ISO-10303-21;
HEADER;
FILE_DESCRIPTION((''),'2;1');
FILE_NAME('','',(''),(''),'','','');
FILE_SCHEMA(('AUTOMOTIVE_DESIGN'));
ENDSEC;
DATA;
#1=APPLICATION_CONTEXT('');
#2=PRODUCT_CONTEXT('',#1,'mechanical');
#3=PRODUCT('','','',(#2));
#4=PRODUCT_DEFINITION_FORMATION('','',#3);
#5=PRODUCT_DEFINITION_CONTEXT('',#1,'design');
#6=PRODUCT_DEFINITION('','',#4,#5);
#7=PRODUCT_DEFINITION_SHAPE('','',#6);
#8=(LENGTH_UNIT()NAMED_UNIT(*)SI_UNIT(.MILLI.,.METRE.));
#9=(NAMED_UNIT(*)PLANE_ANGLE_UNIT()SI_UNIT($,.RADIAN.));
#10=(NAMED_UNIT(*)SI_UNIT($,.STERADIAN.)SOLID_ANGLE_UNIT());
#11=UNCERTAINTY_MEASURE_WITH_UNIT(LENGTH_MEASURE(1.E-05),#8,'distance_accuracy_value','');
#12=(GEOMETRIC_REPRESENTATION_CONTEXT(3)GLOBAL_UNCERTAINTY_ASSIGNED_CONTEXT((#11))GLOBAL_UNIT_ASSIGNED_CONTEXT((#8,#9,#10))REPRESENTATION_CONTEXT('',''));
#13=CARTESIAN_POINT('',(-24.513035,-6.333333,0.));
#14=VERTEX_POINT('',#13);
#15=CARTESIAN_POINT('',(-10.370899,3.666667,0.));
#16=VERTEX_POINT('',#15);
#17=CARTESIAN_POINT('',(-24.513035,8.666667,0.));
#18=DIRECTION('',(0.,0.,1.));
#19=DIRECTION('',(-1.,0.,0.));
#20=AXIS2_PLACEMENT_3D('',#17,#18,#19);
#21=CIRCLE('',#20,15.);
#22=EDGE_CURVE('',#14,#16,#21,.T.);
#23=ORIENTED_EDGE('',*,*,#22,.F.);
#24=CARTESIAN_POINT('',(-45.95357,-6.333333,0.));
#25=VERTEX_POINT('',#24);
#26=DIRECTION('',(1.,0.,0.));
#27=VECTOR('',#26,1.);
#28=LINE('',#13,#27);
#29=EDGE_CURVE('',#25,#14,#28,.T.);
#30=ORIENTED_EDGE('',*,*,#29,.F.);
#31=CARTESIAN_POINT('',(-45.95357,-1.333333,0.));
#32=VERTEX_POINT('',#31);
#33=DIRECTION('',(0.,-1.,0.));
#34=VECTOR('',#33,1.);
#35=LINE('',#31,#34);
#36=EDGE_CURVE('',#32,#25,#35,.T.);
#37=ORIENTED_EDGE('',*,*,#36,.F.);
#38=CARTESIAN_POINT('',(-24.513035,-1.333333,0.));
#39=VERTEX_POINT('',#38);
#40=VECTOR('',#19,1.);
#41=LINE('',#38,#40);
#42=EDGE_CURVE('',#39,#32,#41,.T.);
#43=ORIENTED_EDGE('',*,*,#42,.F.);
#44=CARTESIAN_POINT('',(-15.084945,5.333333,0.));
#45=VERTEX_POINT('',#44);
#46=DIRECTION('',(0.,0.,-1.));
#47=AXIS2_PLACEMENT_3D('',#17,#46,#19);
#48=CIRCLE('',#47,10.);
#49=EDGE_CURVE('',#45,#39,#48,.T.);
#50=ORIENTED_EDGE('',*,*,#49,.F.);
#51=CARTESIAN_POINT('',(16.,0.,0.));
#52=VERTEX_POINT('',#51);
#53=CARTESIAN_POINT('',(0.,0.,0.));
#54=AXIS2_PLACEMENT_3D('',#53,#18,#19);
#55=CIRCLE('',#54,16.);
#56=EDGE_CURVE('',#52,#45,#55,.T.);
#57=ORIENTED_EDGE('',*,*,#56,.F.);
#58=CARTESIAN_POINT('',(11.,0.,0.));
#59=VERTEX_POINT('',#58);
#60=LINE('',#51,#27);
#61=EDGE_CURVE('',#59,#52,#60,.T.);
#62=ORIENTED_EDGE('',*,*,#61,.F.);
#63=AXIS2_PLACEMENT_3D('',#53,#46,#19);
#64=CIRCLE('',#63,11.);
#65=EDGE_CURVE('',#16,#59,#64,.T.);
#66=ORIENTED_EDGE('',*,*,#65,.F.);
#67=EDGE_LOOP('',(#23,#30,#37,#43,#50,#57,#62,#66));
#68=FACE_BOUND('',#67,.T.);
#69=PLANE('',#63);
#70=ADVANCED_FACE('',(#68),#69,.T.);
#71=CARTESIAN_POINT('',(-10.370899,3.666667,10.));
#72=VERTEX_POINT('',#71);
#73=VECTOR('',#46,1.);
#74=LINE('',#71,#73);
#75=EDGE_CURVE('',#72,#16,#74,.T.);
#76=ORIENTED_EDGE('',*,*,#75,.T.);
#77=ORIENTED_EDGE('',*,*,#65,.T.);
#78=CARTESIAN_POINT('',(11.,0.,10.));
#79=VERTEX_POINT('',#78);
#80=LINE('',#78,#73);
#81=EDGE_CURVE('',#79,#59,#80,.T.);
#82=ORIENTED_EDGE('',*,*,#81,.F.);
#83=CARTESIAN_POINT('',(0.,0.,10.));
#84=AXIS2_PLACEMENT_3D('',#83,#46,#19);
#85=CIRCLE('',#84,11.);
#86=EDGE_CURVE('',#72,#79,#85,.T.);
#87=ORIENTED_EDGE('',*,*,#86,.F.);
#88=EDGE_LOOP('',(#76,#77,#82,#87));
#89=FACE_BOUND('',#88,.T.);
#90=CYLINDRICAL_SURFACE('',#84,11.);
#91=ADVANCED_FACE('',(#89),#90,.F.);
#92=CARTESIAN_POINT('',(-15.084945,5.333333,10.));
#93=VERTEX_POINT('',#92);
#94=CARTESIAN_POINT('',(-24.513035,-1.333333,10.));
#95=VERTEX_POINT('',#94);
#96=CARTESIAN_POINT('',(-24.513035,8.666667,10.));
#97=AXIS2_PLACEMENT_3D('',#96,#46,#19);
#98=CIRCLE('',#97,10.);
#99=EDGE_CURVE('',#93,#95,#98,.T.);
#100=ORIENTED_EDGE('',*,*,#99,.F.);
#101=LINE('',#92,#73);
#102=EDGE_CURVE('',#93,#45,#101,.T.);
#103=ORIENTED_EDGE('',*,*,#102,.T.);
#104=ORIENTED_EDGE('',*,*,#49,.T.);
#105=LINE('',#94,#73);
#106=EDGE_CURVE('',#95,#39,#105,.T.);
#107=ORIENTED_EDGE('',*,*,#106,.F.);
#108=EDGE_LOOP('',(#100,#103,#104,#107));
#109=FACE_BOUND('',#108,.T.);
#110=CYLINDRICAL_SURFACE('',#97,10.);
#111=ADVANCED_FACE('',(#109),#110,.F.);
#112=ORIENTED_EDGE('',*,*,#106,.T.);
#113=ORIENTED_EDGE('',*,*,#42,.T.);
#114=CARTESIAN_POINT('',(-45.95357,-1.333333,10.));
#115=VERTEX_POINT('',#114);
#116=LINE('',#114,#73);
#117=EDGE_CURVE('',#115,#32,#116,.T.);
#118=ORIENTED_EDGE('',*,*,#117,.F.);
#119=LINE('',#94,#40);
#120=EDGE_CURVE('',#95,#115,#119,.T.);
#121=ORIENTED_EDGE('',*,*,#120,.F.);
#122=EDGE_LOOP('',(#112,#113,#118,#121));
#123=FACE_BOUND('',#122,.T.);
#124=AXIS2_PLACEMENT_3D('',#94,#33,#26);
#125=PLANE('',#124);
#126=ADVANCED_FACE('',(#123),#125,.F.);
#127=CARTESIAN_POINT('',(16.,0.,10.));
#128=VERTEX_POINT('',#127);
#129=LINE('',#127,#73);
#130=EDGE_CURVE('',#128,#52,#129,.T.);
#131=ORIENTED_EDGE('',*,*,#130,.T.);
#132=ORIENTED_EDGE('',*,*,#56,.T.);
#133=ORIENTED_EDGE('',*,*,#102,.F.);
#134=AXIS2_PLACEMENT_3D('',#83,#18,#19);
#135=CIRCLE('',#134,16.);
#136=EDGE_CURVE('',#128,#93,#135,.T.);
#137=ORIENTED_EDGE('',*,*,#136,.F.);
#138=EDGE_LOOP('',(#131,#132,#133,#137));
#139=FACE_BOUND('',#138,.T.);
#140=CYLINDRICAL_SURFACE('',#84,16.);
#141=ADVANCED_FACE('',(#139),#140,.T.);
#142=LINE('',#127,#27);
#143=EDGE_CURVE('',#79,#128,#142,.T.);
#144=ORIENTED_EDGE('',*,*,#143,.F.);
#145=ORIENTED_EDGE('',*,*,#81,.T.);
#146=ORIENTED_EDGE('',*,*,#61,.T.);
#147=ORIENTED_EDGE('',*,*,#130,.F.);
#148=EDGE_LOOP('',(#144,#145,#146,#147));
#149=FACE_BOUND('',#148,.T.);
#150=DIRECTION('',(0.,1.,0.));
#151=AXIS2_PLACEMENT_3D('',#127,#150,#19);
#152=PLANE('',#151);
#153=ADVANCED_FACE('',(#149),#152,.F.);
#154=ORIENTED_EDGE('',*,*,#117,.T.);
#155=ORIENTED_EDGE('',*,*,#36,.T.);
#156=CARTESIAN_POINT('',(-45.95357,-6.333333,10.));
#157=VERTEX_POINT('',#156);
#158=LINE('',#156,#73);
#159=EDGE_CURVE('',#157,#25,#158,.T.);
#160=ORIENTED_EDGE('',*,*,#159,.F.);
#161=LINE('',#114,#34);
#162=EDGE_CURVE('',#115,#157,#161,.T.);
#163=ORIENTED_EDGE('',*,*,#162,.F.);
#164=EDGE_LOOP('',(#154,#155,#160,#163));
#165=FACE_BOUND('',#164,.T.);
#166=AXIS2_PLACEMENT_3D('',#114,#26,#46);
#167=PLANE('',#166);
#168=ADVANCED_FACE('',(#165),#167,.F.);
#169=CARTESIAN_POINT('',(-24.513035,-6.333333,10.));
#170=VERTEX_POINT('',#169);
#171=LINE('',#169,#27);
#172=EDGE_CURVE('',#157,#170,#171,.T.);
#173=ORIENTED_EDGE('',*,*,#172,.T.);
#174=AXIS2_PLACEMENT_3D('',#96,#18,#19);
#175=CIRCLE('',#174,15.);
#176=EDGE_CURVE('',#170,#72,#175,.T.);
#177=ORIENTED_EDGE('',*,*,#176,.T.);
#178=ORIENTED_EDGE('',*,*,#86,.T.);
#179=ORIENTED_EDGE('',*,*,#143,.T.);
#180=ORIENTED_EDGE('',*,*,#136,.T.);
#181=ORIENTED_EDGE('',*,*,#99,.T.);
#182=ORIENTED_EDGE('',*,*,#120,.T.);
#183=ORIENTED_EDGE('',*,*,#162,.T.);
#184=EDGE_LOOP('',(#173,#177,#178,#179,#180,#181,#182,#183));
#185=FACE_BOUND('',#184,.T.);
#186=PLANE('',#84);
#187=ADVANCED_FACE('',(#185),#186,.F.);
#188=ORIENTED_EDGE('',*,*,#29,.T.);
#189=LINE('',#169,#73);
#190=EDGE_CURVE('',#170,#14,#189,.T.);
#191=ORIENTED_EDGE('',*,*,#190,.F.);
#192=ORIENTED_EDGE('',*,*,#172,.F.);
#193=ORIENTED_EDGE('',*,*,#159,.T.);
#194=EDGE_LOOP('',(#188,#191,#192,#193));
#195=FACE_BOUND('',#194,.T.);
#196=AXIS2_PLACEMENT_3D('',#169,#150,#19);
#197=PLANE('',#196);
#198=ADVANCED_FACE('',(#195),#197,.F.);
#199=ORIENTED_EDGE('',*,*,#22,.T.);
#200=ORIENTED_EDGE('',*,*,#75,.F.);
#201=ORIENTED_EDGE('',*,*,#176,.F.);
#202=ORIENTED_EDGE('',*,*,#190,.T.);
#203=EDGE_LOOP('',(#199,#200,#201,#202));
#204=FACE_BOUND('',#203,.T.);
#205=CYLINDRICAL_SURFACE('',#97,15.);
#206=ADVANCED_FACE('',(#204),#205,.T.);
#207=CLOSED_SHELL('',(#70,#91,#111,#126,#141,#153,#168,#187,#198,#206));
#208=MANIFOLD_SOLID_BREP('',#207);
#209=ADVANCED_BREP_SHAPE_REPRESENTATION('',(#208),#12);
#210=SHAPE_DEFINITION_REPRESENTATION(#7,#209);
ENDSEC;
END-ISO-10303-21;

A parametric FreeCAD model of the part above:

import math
import FreeCAD as App
import Part
import Sketcher
from FreeCAD import Vector

doc = App.newDocument("Part")
body = doc.addObject("PartDesign::Body", "Body")

sketch1 = body.newObject("Sketcher::SketchObject", "Sketch")
sketch1.AttachmentSupport = (doc.getObject("XY_Plane"), [""])
sketch1.MapMode = "FlatFace"
sketch1.addGeometry(Part.LineSegment(Vector(-46, -6, 0), Vector(-25, -6, 0)), False)
sketch1.addGeometry(Part.ArcOfCircle(Part.Circle(Vector(-25, 9, 0), Vector(0, 0, 1), 15), math.radians(-90), math.radians(-19)), False)
sketch1.addGeometry(Part.ArcOfCircle(Part.Circle(Vector(0, 0, 0), Vector(0, 0, 1), 11), math.radians(0), math.radians(161)), False)
sketch1.addGeometry(Part.LineSegment(Vector(11, 0, 0), Vector(16, 0, 0)), False)
sketch1.addGeometry(Part.ArcOfCircle(Part.Circle(Vector(0, 0, 0), Vector(0, 0, 1), 16), math.radians(0), math.radians(161)), False)
sketch1.addGeometry(Part.ArcOfCircle(Part.Circle(Vector(-25, 9, 0), Vector(0, 0, 1), 10), math.radians(-90), math.radians(-19)), False)
sketch1.addGeometry(Part.LineSegment(Vector(-25, -1, 0), Vector(-46, -1, 0)), False)
sketch1.addGeometry(Part.LineSegment(Vector(-46, -1, 0), Vector(-46, -6, 0)), False)
sketch1.addConstraint(Sketcher.Constraint("Tangent", 0, 2, 1, 1))
sketch1.addConstraint(Sketcher.Constraint("Tangent", 1, 2, 2, 2))
sketch1.addConstraint(Sketcher.Constraint("Coincident", 2, 1, 3, 1))
sketch1.addConstraint(Sketcher.Constraint("Coincident", 3, 2, 4, 1))
sketch1.addConstraint(Sketcher.Constraint("Tangent", 4, 2, 5, 2))
sketch1.addConstraint(Sketcher.Constraint("Tangent", 5, 1, 6, 1))
sketch1.addConstraint(Sketcher.Constraint("Coincident", 6, 2, 7, 1))
sketch1.addConstraint(Sketcher.Constraint("Coincident", 7, 2, 0, 1))
sketch1.addConstraint(Sketcher.Constraint("Horizontal", 0))
sketch1.addConstraint(Sketcher.Constraint("Horizontal", 3))
sketch1.addConstraint(Sketcher.Constraint("Horizontal", 6))
sketch1.addConstraint(Sketcher.Constraint("Vertical", 7))
sketch1.addConstraint(Sketcher.Constraint("Coincident", 2, 3, -1, 1))
sketch1.addConstraint(Sketcher.Constraint("Coincident", 4, 3, -1, 1))
sketch1.addConstraint(Sketcher.Constraint("Coincident", 5, 3, 1, 3))
sketch1.addConstraint(Sketcher.Constraint("PointOnObject", 2, 1, -1))
sketch1.addConstraint(Sketcher.Constraint("Radius", 1, 15.0))
sketch1.addConstraint(Sketcher.Constraint("Radius", 2, 11.0))
sketch1.addConstraint(Sketcher.Constraint("Radius", 4, 16.0))
sketch1.addConstraint(Sketcher.Constraint("DistanceY", 1, 2, 5, 3, 5.0))
sketch1.addConstraint(Sketcher.Constraint("DistanceX", 0, 1, 0, 2, 21.440535))
pad1 = body.newObject("PartDesign::Pad", "Pad")
pad1.Profile = sketch1
pad1.Length = 10

doc.recompute()
